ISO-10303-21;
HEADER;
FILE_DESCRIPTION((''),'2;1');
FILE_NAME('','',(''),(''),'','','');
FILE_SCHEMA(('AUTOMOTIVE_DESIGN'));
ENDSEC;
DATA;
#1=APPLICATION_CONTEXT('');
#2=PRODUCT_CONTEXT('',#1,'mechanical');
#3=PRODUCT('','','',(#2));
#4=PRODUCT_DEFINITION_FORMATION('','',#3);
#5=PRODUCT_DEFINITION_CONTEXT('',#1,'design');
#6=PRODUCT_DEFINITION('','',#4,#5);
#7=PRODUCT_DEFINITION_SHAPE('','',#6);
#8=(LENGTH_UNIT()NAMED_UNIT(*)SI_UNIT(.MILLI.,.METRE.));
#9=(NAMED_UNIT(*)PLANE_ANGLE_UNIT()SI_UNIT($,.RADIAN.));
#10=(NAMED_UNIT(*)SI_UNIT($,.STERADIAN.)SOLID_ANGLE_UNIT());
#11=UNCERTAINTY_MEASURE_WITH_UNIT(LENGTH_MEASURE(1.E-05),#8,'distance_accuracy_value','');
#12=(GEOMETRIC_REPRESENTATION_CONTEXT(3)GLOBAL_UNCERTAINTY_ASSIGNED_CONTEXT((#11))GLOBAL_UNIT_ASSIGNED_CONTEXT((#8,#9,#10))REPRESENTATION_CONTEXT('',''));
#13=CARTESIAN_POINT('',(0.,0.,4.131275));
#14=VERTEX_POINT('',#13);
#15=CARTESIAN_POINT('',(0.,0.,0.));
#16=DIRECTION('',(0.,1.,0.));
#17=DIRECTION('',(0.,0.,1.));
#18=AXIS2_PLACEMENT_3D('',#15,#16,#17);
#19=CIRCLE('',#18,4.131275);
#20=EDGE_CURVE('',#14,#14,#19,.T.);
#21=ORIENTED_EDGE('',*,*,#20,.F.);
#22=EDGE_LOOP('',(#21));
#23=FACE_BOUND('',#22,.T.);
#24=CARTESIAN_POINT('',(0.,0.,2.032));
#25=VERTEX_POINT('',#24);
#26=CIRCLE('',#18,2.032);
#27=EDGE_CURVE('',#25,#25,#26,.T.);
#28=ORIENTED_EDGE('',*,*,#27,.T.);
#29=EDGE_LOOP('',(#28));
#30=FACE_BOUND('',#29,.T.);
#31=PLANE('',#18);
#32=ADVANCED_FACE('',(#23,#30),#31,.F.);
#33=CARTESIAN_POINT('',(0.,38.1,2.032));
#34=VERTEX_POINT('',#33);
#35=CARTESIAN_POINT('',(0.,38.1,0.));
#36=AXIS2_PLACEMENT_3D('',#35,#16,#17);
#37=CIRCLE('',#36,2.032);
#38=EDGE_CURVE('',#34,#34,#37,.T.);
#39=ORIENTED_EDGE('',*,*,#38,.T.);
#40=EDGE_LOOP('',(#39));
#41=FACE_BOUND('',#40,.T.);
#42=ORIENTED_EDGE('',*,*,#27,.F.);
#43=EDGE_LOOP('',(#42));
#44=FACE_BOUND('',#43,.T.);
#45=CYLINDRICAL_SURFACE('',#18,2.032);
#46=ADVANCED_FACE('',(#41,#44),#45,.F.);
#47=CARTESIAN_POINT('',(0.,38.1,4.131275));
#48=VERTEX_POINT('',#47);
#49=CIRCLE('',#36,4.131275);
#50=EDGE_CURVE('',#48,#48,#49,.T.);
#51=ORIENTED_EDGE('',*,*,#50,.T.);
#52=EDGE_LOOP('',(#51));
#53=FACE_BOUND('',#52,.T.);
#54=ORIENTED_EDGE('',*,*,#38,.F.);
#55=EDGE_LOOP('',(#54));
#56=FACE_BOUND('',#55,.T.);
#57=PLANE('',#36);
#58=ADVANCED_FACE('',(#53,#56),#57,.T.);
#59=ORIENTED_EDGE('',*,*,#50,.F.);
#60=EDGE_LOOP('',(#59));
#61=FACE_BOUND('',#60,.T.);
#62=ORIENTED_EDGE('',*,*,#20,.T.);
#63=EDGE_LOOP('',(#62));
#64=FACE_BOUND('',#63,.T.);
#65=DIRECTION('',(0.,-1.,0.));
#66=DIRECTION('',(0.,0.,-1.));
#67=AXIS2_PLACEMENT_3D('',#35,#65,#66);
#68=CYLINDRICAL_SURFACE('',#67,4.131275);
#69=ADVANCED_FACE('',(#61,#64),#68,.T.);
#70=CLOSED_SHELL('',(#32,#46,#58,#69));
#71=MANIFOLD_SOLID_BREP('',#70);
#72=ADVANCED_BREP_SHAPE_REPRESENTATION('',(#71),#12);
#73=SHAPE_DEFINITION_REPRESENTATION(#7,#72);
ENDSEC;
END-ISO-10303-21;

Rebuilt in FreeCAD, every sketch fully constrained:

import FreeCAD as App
import Part
import Sketcher

V = App.Vector
Q = App.Units.Quantity

doc = App.newDocument("Part")
body = doc.addObject("PartDesign::Body", "Body")

sketch1 = body.newObject("Sketcher::SketchObject", "Sketch")
sketch1.AttachmentSupport = (doc.getObject("XZ_Plane"), [""])
sketch1.MapMode = "FlatFace"
sketch1.addGeometry(Part.Circle(V(0, 0, 0), V(0, 0, 1), 4.1), False)
sketch1.addConstraint([
    Sketcher.Constraint("Coincident", 0, 3, -1, 1),
    Sketcher.Constraint("Diameter", 0, 8.262549),
])
pad1 = body.newObject("PartDesign::Pad", "Pad")
pad1.Profile = sketch1
pad1.Length = Q("1.5 in")
pad1.Reversed = True

sketch2 = body.newObject("Sketcher::SketchObject", "Sketch001")
sketch2.AttachmentSupport = (doc.getObject("XZ_Plane"), [""])
sketch2.MapMode = "FlatFace"
sketch2.AttachmentOffset = App.Placement(V(0, 0, -1.5 * 25.4), App.Rotation())
sketch2.addGeometry(Part.Circle(V(0, 0, 0), V(0, 0, 1), 2), False)
sketch2.addConstraint([
    Sketcher.Constraint("Coincident", 0, 3, -1, 1),
    Sketcher.Constraint("Diameter", 0, Q("0.16 in")),
])
pocket1 = body.newObject("PartDesign::Pocket", "Pocket")
pocket1.Profile = sketch2
pocket1.Length = Q("1.5 in")
pocket1.Reversed = True

doc.recompute()
